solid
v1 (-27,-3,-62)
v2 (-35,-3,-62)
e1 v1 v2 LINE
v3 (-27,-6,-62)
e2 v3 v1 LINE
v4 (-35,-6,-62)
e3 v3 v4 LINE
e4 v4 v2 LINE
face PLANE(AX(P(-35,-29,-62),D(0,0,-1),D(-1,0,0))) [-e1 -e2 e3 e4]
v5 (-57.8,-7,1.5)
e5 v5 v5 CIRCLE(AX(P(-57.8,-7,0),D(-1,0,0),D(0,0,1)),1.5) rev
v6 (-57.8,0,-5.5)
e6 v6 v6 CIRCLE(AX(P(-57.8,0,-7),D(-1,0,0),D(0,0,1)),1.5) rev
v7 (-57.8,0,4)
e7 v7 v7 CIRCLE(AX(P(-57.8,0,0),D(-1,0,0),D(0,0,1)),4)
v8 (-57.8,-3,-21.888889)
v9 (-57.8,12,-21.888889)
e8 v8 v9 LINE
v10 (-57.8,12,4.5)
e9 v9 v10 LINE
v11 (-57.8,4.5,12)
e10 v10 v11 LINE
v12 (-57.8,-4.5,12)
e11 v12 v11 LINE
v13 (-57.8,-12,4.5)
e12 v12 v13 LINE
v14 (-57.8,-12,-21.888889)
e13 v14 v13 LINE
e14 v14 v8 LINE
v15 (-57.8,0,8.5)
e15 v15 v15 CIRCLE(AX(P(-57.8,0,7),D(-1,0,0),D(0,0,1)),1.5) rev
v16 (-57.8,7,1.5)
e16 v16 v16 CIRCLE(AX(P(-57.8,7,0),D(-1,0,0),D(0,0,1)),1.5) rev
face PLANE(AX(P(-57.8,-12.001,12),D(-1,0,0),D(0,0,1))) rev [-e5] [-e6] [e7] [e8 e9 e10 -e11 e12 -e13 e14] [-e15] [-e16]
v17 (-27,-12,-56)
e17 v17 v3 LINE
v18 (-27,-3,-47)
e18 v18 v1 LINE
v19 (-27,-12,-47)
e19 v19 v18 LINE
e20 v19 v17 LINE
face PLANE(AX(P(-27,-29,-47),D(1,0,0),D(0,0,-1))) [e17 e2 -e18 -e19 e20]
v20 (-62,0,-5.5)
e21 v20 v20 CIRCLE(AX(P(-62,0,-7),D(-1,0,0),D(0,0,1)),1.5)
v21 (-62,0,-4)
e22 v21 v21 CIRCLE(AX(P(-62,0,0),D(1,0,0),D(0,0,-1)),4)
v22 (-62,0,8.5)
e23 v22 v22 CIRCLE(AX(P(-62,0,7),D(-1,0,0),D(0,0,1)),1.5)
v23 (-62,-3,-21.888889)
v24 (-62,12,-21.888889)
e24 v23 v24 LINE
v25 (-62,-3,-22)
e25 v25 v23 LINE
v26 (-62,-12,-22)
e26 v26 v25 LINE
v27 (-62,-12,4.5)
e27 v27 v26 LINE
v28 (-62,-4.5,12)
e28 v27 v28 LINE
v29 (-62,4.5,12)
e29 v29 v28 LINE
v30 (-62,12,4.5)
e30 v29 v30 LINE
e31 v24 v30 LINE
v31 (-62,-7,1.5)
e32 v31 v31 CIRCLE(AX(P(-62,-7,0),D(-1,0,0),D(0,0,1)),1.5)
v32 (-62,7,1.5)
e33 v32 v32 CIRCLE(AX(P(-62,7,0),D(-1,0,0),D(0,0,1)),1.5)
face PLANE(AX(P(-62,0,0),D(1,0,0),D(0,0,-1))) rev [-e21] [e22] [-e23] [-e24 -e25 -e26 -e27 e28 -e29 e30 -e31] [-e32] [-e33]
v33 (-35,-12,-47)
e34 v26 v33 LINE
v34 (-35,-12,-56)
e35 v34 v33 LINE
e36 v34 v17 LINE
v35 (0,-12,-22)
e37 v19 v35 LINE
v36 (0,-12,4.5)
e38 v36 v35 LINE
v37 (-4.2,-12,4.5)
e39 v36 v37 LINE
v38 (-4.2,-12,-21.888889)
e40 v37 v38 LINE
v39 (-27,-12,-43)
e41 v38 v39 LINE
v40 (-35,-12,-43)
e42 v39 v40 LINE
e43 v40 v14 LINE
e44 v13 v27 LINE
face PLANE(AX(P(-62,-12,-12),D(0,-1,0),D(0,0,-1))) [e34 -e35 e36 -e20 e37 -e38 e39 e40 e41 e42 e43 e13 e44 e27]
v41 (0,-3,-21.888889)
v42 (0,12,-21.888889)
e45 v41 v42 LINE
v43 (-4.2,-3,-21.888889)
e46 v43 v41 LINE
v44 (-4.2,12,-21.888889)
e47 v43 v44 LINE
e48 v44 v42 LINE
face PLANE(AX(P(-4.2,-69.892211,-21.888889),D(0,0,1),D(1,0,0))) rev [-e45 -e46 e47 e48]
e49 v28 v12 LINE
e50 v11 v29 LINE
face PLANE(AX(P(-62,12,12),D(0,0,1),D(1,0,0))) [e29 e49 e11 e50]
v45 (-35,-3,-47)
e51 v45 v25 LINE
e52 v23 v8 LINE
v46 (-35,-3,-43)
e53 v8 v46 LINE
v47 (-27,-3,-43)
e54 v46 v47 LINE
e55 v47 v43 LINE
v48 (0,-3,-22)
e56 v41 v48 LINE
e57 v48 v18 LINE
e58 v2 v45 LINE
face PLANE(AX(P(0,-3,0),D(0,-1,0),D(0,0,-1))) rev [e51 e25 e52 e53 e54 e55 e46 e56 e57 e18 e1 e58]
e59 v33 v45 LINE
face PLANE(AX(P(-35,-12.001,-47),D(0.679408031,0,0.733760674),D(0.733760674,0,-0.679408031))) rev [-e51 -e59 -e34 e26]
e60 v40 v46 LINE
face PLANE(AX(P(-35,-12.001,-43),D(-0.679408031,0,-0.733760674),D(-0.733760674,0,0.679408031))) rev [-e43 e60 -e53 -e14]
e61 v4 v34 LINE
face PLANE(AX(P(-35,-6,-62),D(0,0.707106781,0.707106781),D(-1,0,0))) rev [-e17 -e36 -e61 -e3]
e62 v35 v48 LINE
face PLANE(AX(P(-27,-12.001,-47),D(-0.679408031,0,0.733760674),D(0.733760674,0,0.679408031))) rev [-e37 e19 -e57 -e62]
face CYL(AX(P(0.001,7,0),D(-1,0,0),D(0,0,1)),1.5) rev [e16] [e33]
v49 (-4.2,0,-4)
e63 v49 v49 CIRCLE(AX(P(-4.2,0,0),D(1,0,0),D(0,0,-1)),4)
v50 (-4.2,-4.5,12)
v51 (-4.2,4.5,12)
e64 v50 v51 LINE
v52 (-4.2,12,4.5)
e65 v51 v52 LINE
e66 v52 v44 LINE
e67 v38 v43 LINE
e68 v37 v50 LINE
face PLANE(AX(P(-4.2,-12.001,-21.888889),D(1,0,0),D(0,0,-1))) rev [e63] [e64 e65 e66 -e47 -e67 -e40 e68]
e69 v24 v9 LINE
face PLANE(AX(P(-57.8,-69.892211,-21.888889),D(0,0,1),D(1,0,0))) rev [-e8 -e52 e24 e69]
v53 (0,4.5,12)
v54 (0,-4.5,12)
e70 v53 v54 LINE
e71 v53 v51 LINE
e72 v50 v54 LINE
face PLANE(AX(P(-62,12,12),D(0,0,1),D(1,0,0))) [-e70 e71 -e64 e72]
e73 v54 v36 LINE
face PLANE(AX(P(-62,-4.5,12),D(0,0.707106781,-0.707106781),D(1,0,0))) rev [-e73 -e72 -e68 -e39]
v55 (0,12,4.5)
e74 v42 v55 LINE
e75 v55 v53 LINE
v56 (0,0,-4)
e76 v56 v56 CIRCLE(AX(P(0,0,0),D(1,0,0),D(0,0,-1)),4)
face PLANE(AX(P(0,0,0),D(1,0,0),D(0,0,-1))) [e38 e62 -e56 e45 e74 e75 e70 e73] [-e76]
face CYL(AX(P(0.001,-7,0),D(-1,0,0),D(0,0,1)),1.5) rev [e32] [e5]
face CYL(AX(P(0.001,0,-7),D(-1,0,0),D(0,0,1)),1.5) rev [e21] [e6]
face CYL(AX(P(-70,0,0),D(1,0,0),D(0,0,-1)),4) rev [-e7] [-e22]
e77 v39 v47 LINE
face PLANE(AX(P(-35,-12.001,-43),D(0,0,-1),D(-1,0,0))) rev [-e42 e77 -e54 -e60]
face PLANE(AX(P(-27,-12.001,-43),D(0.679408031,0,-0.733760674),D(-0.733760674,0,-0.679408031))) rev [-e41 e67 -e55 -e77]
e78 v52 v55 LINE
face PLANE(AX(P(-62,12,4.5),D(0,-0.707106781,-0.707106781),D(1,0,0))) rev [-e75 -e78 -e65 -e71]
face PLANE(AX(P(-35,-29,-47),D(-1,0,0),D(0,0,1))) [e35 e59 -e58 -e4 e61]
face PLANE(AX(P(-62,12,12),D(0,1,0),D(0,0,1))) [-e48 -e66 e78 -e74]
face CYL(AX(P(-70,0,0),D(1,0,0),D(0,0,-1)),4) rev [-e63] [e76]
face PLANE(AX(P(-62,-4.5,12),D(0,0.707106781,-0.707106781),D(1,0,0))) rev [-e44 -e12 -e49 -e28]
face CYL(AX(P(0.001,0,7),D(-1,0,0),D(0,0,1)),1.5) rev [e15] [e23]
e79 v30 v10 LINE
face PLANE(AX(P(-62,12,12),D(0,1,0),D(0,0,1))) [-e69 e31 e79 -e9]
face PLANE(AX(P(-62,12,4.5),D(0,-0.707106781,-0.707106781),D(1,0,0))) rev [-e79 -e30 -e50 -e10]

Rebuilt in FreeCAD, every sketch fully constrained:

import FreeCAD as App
import Part
import Sketcher

V = App.Vector
Q = App.Units.Quantity


def edges_at(feature, points):
    """Names of the edges that pass closest to the given points."""
    edges = feature.Shape.Edges
    near = lambda p: min(range(len(edges)), key=lambda i: edges[i].distToShape(Part.Vertex(*p))[0])
    return sorted({f"Edge{near(p) + 1}" for p in points})

doc = App.newDocument("Part")
body = doc.addObject("PartDesign::Body", "Body")

# Sketch on YZ plane
sketch1 = body.newObject("Sketcher::SketchObject", "Sketch")
sketch1.AttachmentSupport = (doc.getObject("YZ_Plane"), [""])
sketch1.MapMode = "FlatFace"
sketch1.addGeometry(Part.LineSegment(V(12, 12, 0), V(-12, 12, 0)), False)
sketch1.addGeometry(Part.LineSegment(V(-12, 12, 0), V(-12, -47, 0)), False)
sketch1.addGeometry(Part.LineSegment(V(-12, -47, 0), V(12, -47, 0)), False)
sketch1.addGeometry(Part.LineSegment(V(12, -47, 0), V(12, 12, 0)), False)
sketch1.addConstraint(Sketcher.Constraint("Coincident", 0, 2, 1, 1))
sketch1.addConstraint(Sketcher.Constraint("Coincident", 1, 2, 2, 1))
sketch1.addConstraint(Sketcher.Constraint("Coincident", 2, 2, 3, 1))
sketch1.addConstraint(Sketcher.Constraint("Coincident", 3, 2, 0, 1))
sketch1.addConstraint(Sketcher.Constraint("Horizontal", 0))
sketch1.addConstraint(Sketcher.Constraint("Vertical", 1))
sketch1.addConstraint(Sketcher.Constraint("Horizontal", 2))
sketch1.addConstraint(Sketcher.Constraint("Vertical", 3))
sketch1.addConstraint(Sketcher.Constraint("DistanceX", 0, 2, 0, 1, Q("24 mm")))
sketch1.addConstraint(Sketcher.Constraint("DistanceY", 1, 2, 1, 1, Q("59 mm")))
sketch1.addConstraint(Sketcher.Constraint("DistanceX", 0, 2, -1, 1, Q("12 mm")))
sketch1.addConstraint(Sketcher.Constraint("DistanceY", -1, 1, 0, 2, Q("12 mm")))
pad1 = body.newObject("PartDesign::Pad", "Pad")
pad1.Profile = sketch1
pad1.Length = 62
pad1.Reversed = True

# Sketch on XZ plane
sketch2 = body.newObject("Sketcher::SketchObject", "Sketch001")
sketch2.AttachmentSupport = (doc.getObject("XZ_Plane"), [""])
sketch2.MapMode = "FlatFace"
sketch2.AttachmentOffset = App.Placement(V(0, 0, -12), App.Rotation())
sketch2.addGeometry(Part.LineSegment(V(-57.8, -21.888889, 0), V(-57.8, 12, 0)), False)
sketch2.addGeometry(Part.LineSegment(V(-57.8, 12, 0), V(-4.2, 12, 0)), False)
sketch2.addGeometry(Part.LineSegment(V(-4.2, 12, 0), V(-4.2, -21.888889, 0)), False)
sketch2.addGeometry(Part.LineSegment(V(-4.2, -21.888889, 0), V(-27, -43, 0)), False)
sketch2.addGeometry(Part.LineSegment(V(-27, -43, 0), V(-35, -43, 0)), False)
sketch2.addGeometry(Part.LineSegment(V(-35, -43, 0), V(-57.8, -21.888889, 0)), False)
sketch2.addConstraint(Sketcher.Constraint("Coincident", 0, 2, 1, 1))
sketch2.addConstraint(Sketcher.Constraint("Coincident", 1, 2, 2, 1))
sketch2.addConstraint(Sketcher.Constraint("Coincident", 2, 2, 3, 1))
sketch2.addConstraint(Sketcher.Constraint("Coincident", 3, 2, 4, 1))
sketch2.addConstraint(Sketcher.Constraint("Coincident", 4, 2, 5, 1))
sketch2.addConstraint(Sketcher.Constraint("Coincident", 5, 2, 0, 1))
sketch2.addConstraint(Sketcher.Constraint("Vertical", 0))
sketch2.addConstraint(Sketcher.Constraint("Horizontal", 1))
sketch2.addConstraint(Sketcher.Constraint("Vertical", 2))
sketch2.addConstraint(Sketcher.Constraint("Horizontal", 4))
sketch2.addConstraint(Sketcher.Constraint("Horizontal", 2, 2, 5, 2))
sketch2.addConstraint(Sketcher.Constraint("Equal", 3, 5))
sketch2.addConstraint(Sketcher.Constraint("DistanceX", 4, 2, 4, 1, Q("8 mm")))
sketch2.addConstraint(Sketcher.Constraint("DistanceX", 1, 1, 1, 2, Q("53.6 mm")))
sketch2.addConstraint(Sketcher.Constraint("DistanceY", -1, 1, 0, 2, Q("12 mm")))
sketch2.addConstraint(Sketcher.Constraint("DistanceX", 3, 2, -1, 1, Q("27 mm")))
sketch2.addConstraint(Sketcher.Constraint("DistanceY", 3, 2, -1, 1, Q("43 mm")))
sketch2.addConstraint(Sketcher.Constraint("Distance", 3, Q("31.072802 mm")))
pocket1 = body.newObject("PartDesign::Pocket", "Pocket")
pocket1.Profile = sketch2
pocket1.Type = "UpToFirst"
pocket1.Reversed = True

# Sketch on XZ plane
sketch3 = body.newObject("Sketcher::SketchObject", "Sketch002")
sketch3.AttachmentSupport = (doc.getObject("XZ_Plane"), [""])
sketch3.MapMode = "FlatFace"
sketch3.AttachmentOffset = App.Placement(V(0, 0, -12), App.Rotation())
sketch3.addGeometry(Part.LineSegment(V(-62, -47, 0), V(-62, -22, 0)), False)
sketch3.addGeometry(Part.LineSegment(V(-62, -22, 0), V(-35, -47, 0)), False)
sketch3.addGeometry(Part.LineSegment(V(-35, -47, 0), V(-62, -47, 0)), False)
sketch3.addConstraint(Sketcher.Constraint("Coincident", 0, 2, 1, 1))
sketch3.addConstraint(Sketcher.Constraint("Coincident", 1, 2, 2, 1))
sketch3.addConstraint(Sketcher.Constraint("Coincident", 2, 2, 0, 1))
sketch3.addConstraint(Sketcher.Constraint("Vertical", 0))
sketch3.addConstraint(Sketcher.Constraint("Horizontal", 2))
sketch3.addConstraint(Sketcher.Constraint("DistanceX", 2, 2, 2, 1, Q("27 mm")))
sketch3.addConstraint(Sketcher.Constraint("DistanceY", 0, 1, 0, 2, Q("25 mm")))
sketch3.addConstraint(Sketcher.Constraint("DistanceX", 0, 2, -1, 1, Q("62 mm")))
sketch3.addConstraint(Sketcher.Constraint("DistanceY", 0, 2, -1, 1, Q("22 mm")))
pocket2 = body.newObject("PartDesign::Pocket", "Pocket001")
pocket2.Profile = sketch3
pocket2.Type = "UpToFirst"
pocket2.Reversed = True

# Sketch on XZ plane
sketch4 = body.newObject("Sketcher::SketchObject", "Sketch003")
sketch4.AttachmentSupport = (doc.getObject("XZ_Plane"), [""])
sketch4.MapMode = "FlatFace"
sketch4.AttachmentOffset = App.Placement(V(0, 0, -12), App.Rotation())
sketch4.addGeometry(Part.LineSegment(V(0, -47, 0), V(-27, -47, 0)), False)
sketch4.addGeometry(Part.LineSegment(V(-27, -47, 0), V(0, -22, 0)), False)
sketch4.addGeometry(Part.LineSegment(V(0, -22, 0), V(0, -47, 0)), False)
sketch4.addConstraint(Sketcher.Constraint("Coincident", 0, 2, 1, 1))
sketch4.addConstraint(Sketcher.Constraint("Coincident", 1, 2, 2, 1))
sketch4.addConstraint(Sketcher.Constraint("Coincident", 2, 2, 0, 1))
sketch4.addConstraint(Sketcher.Constraint("Horizontal", 0))
sketch4.addConstraint(Sketcher.Constraint("Vertical", 2))
sketch4.addConstraint(Sketcher.Constraint("PointOnObject", 1, 2, -2))
sketch4.addConstraint(Sketcher.Constraint("DistanceX", 0, 2, 0, 1, Q("27 mm")))
sketch4.addConstraint(Sketcher.Constraint("DistanceY", 2, 2, 2, 1, Q("25 mm")))
sketch4.addConstraint(Sketcher.Constraint("DistanceY", 0, 2, -1, 1, Q("47 mm")))
pocket3 = body.newObject("PartDesign::Pocket", "Pocket002")
pocket3.Profile = sketch4
pocket3.Type = "UpToFirst"
pocket3.Reversed = True

# Sketch on XZ plane
sketch5 = body.newObject("Sketcher::SketchObject", "Sketch004")
sketch5.AttachmentSupport = (doc.getObject("XZ_Plane"), [""])
sketch5.MapMode = "FlatFace"
sketch5.AttachmentOffset = App.Placement(V(0, 0, 3), App.Rotation())
sketch5.addGeometry(Part.LineSegment(V(-35, -62, 0), V(-35, -47, 0)), False)
sketch5.addGeometry(Part.LineSegment(V(-35, -47, 0), V(-27, -47, 0)), False)
sketch5.addGeometry(Part.LineSegment(V(-27, -47, 0), V(-27, -62, 0)), False)
sketch5.addGeometry(Part.LineSegment(V(-27, -62, 0), V(-35, -62, 0)), False)
sketch5.addConstraint(Sketcher.Constraint("Coincident", 0, 2, 1, 1))
sketch5.addConstraint(Sketcher.Constraint("Coincident", 1, 2, 2, 1))
sketch5.addConstraint(Sketcher.Constraint("Coincident", 2, 2, 3, 1))
sketch5.addConstraint(Sketcher.Constraint("Coincident", 3, 2, 0, 1))
sketch5.addConstraint(Sketcher.Constraint("Vertical", 0))
sketch5.addConstraint(Sketcher.Constraint("Horizontal", 1))
sketch5.addConstraint(Sketcher.Constraint("Vertical", 2))
sketch5.addConstraint(Sketcher.Constraint("Horizontal", 3))
sketch5.addConstraint(Sketcher.Constraint("DistanceX", 1, 1, 1, 2, Q("8 mm")))
sketch5.addConstraint(Sketcher.Constraint("DistanceY", 0, 1, 0, 2, Q("15 mm")))
sketch5.addConstraint(Sketcher.Constraint("DistanceX", 0, 2, -1, 1, Q("35 mm")))
sketch5.addConstraint(Sketcher.Constraint("DistanceY", 0, 2, -1, 1, Q("47 mm")))
pad2 = body.newObject("PartDesign::Pad", "Pad001")
pad2.Profile = sketch5
pad2.Length = 9

# Sketch on YZ plane
sketch6 = body.newObject("Sketcher::SketchObject", "Sketch005")
sketch6.AttachmentSupport = (doc.getObject("YZ_Plane"), [""])
sketch6.MapMode = "FlatFace"
sketch6.addGeometry(Part.Circle(V(0, 0, 0), V(0, 0, 1), 4), False)
sketch6.addConstraint(Sketcher.Constraint("Coincident", 0, 3, -1, 1))
sketch6.addConstraint(Sketcher.Constraint("Diameter", 0, Q("8 mm")))
pocket4 = body.newObject("PartDesign::Pocket", "Pocket003")
pocket4.Profile = sketch6
pocket4.Length = 70

# Sketch on YZ plane
sketch7 = body.newObject("Sketcher::SketchObject", "Sketch006")
sketch7.AttachmentSupport = (doc.getObject("YZ_Plane"), [""])
sketch7.MapMode = "FlatFace"
sketch7.AttachmentOffset = App.Placement(V(0, 0, -62), App.Rotation())
sketch7.addGeometry(Part.Circle(V(7, 0, 0), V(0, 0, 1), 1.5), False)
sketch7.addConstraint(Sketcher.Constraint("PointOnObject", 0, 3, -1))
sketch7.addConstraint(Sketcher.Constraint("Diameter", 0, Q("3 mm")))
sketch7.addConstraint(Sketcher.Constraint("DistanceX", -1, 1, 0, 3, Q("7 mm")))
pocket5 = body.newObject("PartDesign::Pocket", "Pocket004")
pocket5.Profile = sketch7
pocket5.Type = "UpToFirst"
pocket5.Reversed = True

# Sketch on YZ plane
sketch8 = body.newObject("Sketcher::SketchObject", "Sketch007")
sketch8.AttachmentSupport = (doc.getObject("YZ_Plane"), [""])
sketch8.MapMode = "FlatFace"
sketch8.AttachmentOffset = App.Placement(V(0, 0, -62), App.Rotation())
sketch8.addGeometry(Part.Circle(V(0, 7, 0), V(0, 0, 1), 1.5), False)
sketch8.addConstraint(Sketcher.Constraint("PointOnObject", 0, 3, -2))
sketch8.addConstraint(Sketcher.Constraint("Diameter", 0, Q("3 mm")))
sketch8.addConstraint(Sketcher.Constraint("DistanceY", -1, 1, 0, 3, Q("7 mm")))
pocket6 = body.newObject("PartDesign::Pocket", "Pocket005")
pocket6.Profile = sketch8
pocket6.Type = "UpToFirst"
pocket6.Reversed = True

# Sketch on YZ plane
sketch9 = body.newObject("Sketcher::SketchObject", "Sketch008")
sketch9.AttachmentSupport = (doc.getObject("YZ_Plane"), [""])
sketch9.MapMode = "FlatFace"
sketch9.AttachmentOffset = App.Placement(V(0, 0, -62), App.Rotation())
sketch9.addGeometry(Part.Circle(V(-7, 0, 0), V(0, 0, 1), 1.5), False)
sketch9.addConstraint(Sketcher.Constraint("PointOnObject", 0, 3, -1))
sketch9.addConstraint(Sketcher.Constraint("Diameter", 0, Q("3 mm")))
sketch9.addConstraint(Sketcher.Constraint("DistanceX", 0, 3, -1, 1, Q("7 mm")))
pocket7 = body.newObject("PartDesign::Pocket", "Pocket006")
pocket7.Profile = sketch9
pocket7.Type = "UpToFirst"
pocket7.Reversed = True

# Sketch on YZ plane
sketch10 = body.newObject("Sketcher::SketchObject", "Sketch009")
sketch10.AttachmentSupport = (doc.getObject("YZ_Plane"), [""])
sketch10.MapMode = "FlatFace"
sketch10.AttachmentOffset = App.Placement(V(0, 0, -62), App.Rotation())
sketch10.addGeometry(Part.Circle(V(0, -7, 0), V(0, 0, 1), 1.5), False)
sketch10.addConstraint(Sketcher.Constraint("PointOnObject", 0, 3, -2))
sketch10.addConstraint(Sketcher.Constraint("Diameter", 0, Q("3 mm")))
sketch10.addConstraint(Sketcher.Constraint("DistanceY", 0, 3, -1, 1, Q("7 mm")))
pocket8 = body.newObject("PartDesign::Pocket", "Pocket007")
pocket8.Profile = sketch10
pocket8.Type = "UpToFirst"
pocket8.Reversed = True
doc.recompute()

chamfer = body.newObject("PartDesign::Chamfer", "Chamfer")
chamfer.Base = (pocket8, edges_at(pocket8, [
    (-59.9, -12, 12),
    (-59.9, 12, 12),
    (-2.1, 12, 12),
    (-2.1, -12, 12),
]))
chamfer.Size = 7.5

# Sketch on XZ plane
sketch11 = body.newObject("Sketcher::SketchObject", "Sketch010")
sketch11.AttachmentSupport = (doc.getObject("XZ_Plane"), [""])
sketch11.MapMode = "FlatFace"
sketch11.AttachmentOffset = App.Placement(V(0, 0, -12), App.Rotation())
sketch11.addGeometry(Part.LineSegment(V(-35, -47, 0), V(-62, -22, 0)), False)
sketch11.addGeometry(Part.LineSegment(V(-62, -22, 0), V(-62, -21.888889, 0)), False)
sketch11.addGeometry(Part.LineSegment(V(-62, -21.888889, 0), V(-57.8, -21.888889, 0)), False)
sketch11.addGeometry(Part.LineSegment(V(-57.8, -21.888889, 0), V(-35, -43, 0)), False)
sketch11.addGeometry(Part.LineSegment(V(-35, -43, 0), V(-27, -43, 0)), False)
sketch11.addGeometry(Part.LineSegment(V(-27, -43, 0), V(-4.2, -21.888889, 0)), False)
sketch11.addGeometry(Part.LineSegment(V(-4.2, -21.888889, 0), V(0, -21.888889, 0)), False)
sketch11.addGeometry(Part.LineSegment(V(0, -21.888889, 0), V(0, -22, 0)), False)
sketch11.addGeometry(Part.LineSegment(V(0, -22, 0), V(-27, -47, 0)), False)
sketch11.addGeometry(Part.LineSegment(V(-27, -47, 0), V(-35, -47, 0)), False)
sketch11.addConstraint(Sketcher.Constraint("Coincident", 0, 2, 1, 1))
sketch11.addConstraint(Sketcher.Constraint("Coincident", 1, 2, 2, 1))
sketch11.addConstraint(Sketcher.Constraint("Coincident", 2, 2, 3, 1))
sketch11.addConstraint(Sketcher.Constraint("Coincident", 3, 2, 4, 1))
sketch11.addConstraint(Sketcher.Constraint("Coincident", 4, 2, 5, 1))
sketch11.addConstraint(Sketcher.Constraint("Coincident", 5, 2, 6, 1))
sketch11.addConstraint(Sketcher.Constraint("Coincident", 6, 2, 7, 1))
sketch11.addConstraint(Sketcher.Constraint("Coincident", 7, 2, 8, 1))
sketch11.addConstraint(Sketcher.Constraint("Coincident", 8, 2, 9, 1))
sketch11.addConstraint(Sketcher.Constraint("Coincident", 9, 2, 0, 1))
sketch11.addConstraint(Sketcher.Constraint("Vertical", 1))
sketch11.addConstraint(Sketcher.Constraint("Horizontal", 2))
sketch11.addConstraint(Sketcher.Constraint("Horizontal", 4))
sketch11.addConstraint(Sketcher.Constraint("Horizontal", 6))
sketch11.addConstraint(Sketcher.Constraint("Vertical", 7))
sketch11.addConstraint(Sketcher.Constraint("Horizontal", 9))
sketch11.addConstraint(Sketcher.Constraint("PointOnObject", 6, 2, -2))
sketch11.addConstraint(Sketcher.Constraint("Parallel", 0, 3))
sketch11.addConstraint(Sketcher.Constraint("Parallel", 5, 8))
sketch11.addConstraint(Sketcher.Constraint("Horizontal", 2, 2, 5, 2))
sketch11.addConstraint(Sketcher.Constraint("Horizontal", 0, 2, 7, 2))
sketch11.addConstraint(Sketcher.Constraint("Vertical", 4, 2, 8, 2))
sketch11.addConstraint(Sketcher.Constraint("Vertical", 3, 2, 9, 2))
sketch11.addConstraint(Sketcher.Constraint("Equal", 2, 6))
sketch11.addConstraint(Sketcher.Constraint("DistanceX", 4, 1, 4, 2, Q("8 mm")))
sketch11.addConstraint(Sketcher.Constraint("DistanceX", 2, 1, 2, 2, Q("4.2 mm")))
sketch11.addConstraint(Sketcher.Constraint("DistanceX", 0, 2, -1, 1, Q("62 mm")))
sketch11.addConstraint(Sketcher.Constraint("DistanceY", 0, 2, -1, 1, Q("22 mm")))
sketch11.addConstraint(Sketcher.Constraint("DistanceY", 3, 2, -1, 1, Q("43 mm")))
sketch11.addConstraint(Sketcher.Constraint("DistanceY", 8, 2, -1, 1, Q("47 mm")))
pocket9 = body.newObject("PartDesign::Pocket", "Pocket008")
pocket9.Profile = sketch11
pocket9.Length = 15
pocket9.Reversed = True
doc.recompute()

chamfer2 = body.newObject("PartDesign::Chamfer", "Chamfer001")
chamfer2.Base = (pocket9, edges_at(pocket9, [(-31, -12, -62)]))
chamfer2.Size = 6

doc.recompute()
